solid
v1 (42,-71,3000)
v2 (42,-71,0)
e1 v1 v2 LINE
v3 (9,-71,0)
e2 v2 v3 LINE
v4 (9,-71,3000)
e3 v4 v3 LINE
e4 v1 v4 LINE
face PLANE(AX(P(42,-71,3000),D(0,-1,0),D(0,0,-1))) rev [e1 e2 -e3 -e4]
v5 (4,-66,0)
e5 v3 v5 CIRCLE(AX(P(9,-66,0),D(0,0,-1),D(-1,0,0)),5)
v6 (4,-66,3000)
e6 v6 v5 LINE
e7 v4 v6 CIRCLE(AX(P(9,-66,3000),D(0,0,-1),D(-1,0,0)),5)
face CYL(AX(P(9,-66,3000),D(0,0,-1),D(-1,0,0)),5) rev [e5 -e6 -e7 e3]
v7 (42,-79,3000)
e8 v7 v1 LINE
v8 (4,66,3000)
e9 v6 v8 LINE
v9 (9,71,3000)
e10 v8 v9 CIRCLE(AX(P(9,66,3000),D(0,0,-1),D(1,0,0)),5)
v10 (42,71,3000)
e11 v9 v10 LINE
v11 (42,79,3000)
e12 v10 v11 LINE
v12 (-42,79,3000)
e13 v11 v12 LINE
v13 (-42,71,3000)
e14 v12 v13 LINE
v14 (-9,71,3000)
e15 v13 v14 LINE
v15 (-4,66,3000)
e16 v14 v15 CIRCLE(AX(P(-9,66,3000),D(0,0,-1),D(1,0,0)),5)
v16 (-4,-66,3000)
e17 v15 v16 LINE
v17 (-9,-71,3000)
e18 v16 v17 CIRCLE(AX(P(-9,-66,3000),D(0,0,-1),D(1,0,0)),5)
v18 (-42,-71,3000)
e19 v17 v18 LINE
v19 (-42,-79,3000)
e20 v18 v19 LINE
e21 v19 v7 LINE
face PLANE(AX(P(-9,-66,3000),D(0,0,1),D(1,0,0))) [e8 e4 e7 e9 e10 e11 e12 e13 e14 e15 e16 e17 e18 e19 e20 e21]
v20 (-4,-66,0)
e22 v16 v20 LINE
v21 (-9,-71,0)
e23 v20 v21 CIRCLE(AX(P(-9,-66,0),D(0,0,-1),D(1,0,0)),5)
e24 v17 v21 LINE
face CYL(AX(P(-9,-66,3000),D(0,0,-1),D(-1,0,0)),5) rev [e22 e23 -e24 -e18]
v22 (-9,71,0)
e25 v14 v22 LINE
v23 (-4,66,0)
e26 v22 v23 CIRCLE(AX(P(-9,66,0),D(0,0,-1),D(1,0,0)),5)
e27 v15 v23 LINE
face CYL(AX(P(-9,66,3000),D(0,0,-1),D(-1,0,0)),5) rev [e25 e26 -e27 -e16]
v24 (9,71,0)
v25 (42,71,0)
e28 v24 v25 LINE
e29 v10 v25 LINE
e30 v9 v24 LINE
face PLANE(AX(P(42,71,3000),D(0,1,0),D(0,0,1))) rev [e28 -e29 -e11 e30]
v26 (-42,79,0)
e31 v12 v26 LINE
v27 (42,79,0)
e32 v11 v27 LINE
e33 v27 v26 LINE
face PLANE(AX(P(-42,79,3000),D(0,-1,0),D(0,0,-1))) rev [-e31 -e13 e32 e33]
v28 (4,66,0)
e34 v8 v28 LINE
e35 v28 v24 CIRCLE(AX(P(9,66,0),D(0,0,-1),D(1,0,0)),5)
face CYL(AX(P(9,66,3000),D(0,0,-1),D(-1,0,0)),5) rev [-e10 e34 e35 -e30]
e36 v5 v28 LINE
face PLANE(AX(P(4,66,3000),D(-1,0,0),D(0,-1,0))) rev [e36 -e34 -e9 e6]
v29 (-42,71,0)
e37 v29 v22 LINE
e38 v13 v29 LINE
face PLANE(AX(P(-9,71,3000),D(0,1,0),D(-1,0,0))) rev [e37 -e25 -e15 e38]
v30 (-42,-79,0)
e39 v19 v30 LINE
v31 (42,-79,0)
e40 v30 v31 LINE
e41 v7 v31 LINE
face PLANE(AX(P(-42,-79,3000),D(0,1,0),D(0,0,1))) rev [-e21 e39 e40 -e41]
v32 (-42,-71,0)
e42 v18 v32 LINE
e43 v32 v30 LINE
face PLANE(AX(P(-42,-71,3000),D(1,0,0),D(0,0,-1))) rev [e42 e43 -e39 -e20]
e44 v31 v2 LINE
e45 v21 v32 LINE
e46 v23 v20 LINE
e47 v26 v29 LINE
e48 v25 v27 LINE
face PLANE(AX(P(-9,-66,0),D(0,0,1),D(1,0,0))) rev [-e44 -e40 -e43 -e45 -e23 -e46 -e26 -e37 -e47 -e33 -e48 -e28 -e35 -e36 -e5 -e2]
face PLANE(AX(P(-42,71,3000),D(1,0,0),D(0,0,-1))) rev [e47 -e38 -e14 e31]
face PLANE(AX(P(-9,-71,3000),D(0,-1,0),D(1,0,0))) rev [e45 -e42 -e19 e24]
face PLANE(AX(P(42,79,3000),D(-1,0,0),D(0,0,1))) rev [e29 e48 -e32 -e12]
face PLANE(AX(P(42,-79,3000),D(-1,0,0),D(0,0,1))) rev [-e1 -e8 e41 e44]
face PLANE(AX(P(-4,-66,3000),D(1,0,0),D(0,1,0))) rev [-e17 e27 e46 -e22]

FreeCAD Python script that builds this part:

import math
import FreeCAD as App
import Part
import Sketcher
from FreeCAD import Vector

doc = App.newDocument("Part")
body = doc.addObject("PartDesign::Body", "Body")

# Sketch on XY plane
sketch1 = doc.addObject("Sketcher::SketchObject", "Sketch")
body.addObject(sketch1)
sketch1.AttachmentSupport = (doc.XY_Plane, [""])
sketch1.MapMode = "FlatFace"
sketch1.addGeometry([
    Part.LineSegment(Vector(-4, 66, 0), Vector(-4, -66, 0)),  # 0
    Part.ArcOfCircle(Part.Circle(Vector(-9, -66, 0), Vector(0, 0, 1), 5), math.radians(-90), math.radians(0)),  # 1
    Part.LineSegment(Vector(-9, -71, 0), Vector(-42, -71, 0)),  # 2
    Part.LineSegment(Vector(-42, -71, 0), Vector(-42, -79, 0)),  # 3
    Part.LineSegment(Vector(-42, -79, 0), Vector(42, -79, 0)),  # 4
    Part.LineSegment(Vector(42, -79, 0), Vector(42, -71, 0)),  # 5
    Part.LineSegment(Vector(42, -71, 0), Vector(9, -71, 0)),  # 6
    Part.ArcOfCircle(Part.Circle(Vector(9, -66, 0), Vector(0, 0, 1), 5), math.radians(180), math.radians(270)),  # 7
    Part.LineSegment(Vector(4, -66, 0), Vector(4, 66, 0)),  # 8
    Part.ArcOfCircle(Part.Circle(Vector(9, 66, 0), Vector(0, 0, 1), 5), math.radians(90), math.radians(180)),  # 9
    Part.LineSegment(Vector(9, 71, 0), Vector(42, 71, 0)),  # 10
    Part.LineSegment(Vector(42, 71, 0), Vector(42, 79, 0)),  # 11
    Part.LineSegment(Vector(42, 79, 0), Vector(-42, 79, 0)),  # 12
    Part.LineSegment(Vector(-42, 79, 0), Vector(-42, 71, 0)),  # 13
    Part.LineSegment(Vector(-42, 71, 0), Vector(-9, 71, 0)),  # 14
    Part.ArcOfCircle(Part.Circle(Vector(-9, 66, 0), Vector(0, 0, 1), 5), math.radians(0), math.radians(90)),  # 15
], False)
sketch1.addConstraint([
    Sketcher.Constraint("Tangent", 0, 2, 1, 2),
    Sketcher.Constraint("Tangent", 1, 1, 2, 1),
    Sketcher.Constraint("Coincident", 2, 2, 3, 1),
    Sketcher.Constraint("Coincident", 3, 2, 4, 1),
    Sketcher.Constraint("Coincident", 4, 2, 5, 1),
    Sketcher.Constraint("Coincident", 5, 2, 6, 1),
    Sketcher.Constraint("Tangent", 6, 2, 7, 2),
    Sketcher.Constraint("Tangent", 7, 1, 8, 1),
    Sketcher.Constraint("Tangent", 8, 2, 9, 2),
    Sketcher.Constraint("Tangent", 9, 1, 10, 1),
    Sketcher.Constraint("Coincident", 10, 2, 11, 1),
    Sketcher.Constraint("Coincident", 11, 2, 12, 1),
    Sketcher.Constraint("Coincident", 12, 2, 13, 1),
    Sketcher.Constraint("Coincident", 13, 2, 14, 1),
    Sketcher.Constraint("Tangent", 14, 2, 15, 2),
    Sketcher.Constraint("Tangent", 15, 1, 0, 1),
    Sketcher.Constraint("Vertical", 0),
    Sketcher.Constraint("Horizontal", 2),
    Sketcher.Constraint("Vertical", 3),
    Sketcher.Constraint("Horizontal", 4),
    Sketcher.Constraint("Vertical", 5),
    Sketcher.Constraint("Horizontal", 6),
    Sketcher.Constraint("Vertical", 8),
    Sketcher.Constraint("Horizontal", 10),
    Sketcher.Constraint("Vertical", 11),
    Sketcher.Constraint("Horizontal", 12),
    Sketcher.Constraint("Vertical", 13),
    Sketcher.Constraint("Horizontal", 14),
    Sketcher.Constraint("Equal", 1, 7),
    Sketcher.Constraint("Equal", 7, 9),
    Sketcher.Constraint("Equal", 9, 15),
    Sketcher.Constraint("Symmetric", 1, 3, 9, 3, -1, 1),
    Sketcher.Constraint("Symmetric", 3, 2, 11, 2, -1, 1),
    Sketcher.Constraint("Symmetric", 5, 2, 13, 2, -1, 1),
    Sketcher.Constraint("Symmetric", 2, 2, 5, 2, -2),
    Sketcher.Constraint("Radius", 1, 5.0),
    Sketcher.Constraint("DistanceX", 2, 2, 2, 1, 33.0),
    Sketcher.Constraint("DistanceX", 4, 1, 4, 2, 84.0),
    Sketcher.Constraint("DistanceY", 0, 2, 0, 1, 132.0),
    Sketcher.Constraint("DistanceY", 3, 2, 3, 1, 8.0),
])
pad1 = doc.addObject("PartDesign::Pad", "Pad")
body.addObject(pad1)
pad1.Profile = sketch1
pad1.Length = 3000

doc.recompute()
